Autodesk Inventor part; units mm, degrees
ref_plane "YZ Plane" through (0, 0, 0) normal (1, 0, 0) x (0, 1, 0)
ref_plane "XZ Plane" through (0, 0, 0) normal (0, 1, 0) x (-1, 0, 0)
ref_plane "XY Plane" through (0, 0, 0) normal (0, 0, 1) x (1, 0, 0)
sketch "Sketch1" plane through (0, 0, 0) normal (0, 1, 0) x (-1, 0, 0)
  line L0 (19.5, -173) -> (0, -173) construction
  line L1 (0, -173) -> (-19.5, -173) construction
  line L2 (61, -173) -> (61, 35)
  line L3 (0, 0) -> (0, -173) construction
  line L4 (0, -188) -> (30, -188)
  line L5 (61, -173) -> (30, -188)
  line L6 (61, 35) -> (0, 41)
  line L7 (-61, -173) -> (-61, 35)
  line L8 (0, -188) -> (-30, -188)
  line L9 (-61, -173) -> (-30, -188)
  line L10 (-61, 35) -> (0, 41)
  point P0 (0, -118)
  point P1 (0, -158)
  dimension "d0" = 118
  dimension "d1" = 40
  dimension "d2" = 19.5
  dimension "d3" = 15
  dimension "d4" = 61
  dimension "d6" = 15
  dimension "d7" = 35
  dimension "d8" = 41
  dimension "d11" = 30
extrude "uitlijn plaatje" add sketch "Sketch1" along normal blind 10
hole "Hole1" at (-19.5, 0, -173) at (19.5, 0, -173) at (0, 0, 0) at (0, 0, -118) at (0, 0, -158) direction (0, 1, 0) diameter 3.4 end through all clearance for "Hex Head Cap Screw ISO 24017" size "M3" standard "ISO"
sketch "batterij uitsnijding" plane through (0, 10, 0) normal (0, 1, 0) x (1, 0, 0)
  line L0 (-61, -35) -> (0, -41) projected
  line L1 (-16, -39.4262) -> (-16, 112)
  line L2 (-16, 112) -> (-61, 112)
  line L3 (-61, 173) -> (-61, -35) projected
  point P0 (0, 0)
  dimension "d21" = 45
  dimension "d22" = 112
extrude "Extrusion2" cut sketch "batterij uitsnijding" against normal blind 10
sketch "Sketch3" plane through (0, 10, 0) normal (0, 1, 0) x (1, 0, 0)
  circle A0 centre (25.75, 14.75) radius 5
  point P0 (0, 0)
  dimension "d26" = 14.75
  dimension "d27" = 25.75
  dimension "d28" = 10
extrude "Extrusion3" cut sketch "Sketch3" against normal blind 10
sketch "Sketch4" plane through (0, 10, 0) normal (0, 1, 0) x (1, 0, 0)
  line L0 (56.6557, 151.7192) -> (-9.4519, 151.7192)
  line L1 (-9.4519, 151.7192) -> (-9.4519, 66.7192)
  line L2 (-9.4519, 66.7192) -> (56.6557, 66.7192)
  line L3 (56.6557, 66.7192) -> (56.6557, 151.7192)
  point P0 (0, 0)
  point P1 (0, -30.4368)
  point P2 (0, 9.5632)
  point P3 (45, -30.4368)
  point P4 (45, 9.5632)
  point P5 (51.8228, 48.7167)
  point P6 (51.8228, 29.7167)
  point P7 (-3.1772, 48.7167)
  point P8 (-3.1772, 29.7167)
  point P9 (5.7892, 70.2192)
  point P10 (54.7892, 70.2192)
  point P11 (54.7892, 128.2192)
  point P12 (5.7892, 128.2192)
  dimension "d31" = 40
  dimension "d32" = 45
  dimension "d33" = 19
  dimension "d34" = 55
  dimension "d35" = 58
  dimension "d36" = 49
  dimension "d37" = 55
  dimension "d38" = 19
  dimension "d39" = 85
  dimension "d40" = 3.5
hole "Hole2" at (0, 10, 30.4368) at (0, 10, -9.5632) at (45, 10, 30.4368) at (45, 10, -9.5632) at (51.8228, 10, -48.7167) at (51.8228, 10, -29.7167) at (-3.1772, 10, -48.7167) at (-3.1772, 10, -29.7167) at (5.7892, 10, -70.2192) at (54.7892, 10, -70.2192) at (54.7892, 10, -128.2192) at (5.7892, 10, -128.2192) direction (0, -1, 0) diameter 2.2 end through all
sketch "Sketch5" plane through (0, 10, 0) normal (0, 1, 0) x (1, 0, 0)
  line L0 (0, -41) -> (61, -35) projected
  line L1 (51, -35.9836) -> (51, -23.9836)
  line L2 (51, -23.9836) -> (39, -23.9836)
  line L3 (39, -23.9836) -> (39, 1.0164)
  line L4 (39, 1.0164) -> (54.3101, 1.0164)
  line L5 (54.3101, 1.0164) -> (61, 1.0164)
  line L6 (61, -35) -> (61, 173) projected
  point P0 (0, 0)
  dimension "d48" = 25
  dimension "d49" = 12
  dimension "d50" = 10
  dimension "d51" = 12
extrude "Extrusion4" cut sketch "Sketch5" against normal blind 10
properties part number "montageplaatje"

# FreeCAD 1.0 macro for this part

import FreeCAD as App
import Part
import Sketcher


def add_polygon(sketch, points):
    """Adds a closed chain of lines whose ends are joined by coincident constraints."""
    first, n = sketch.GeometryCount, len(points)
    for a, b in zip(points, points[1:] + points[:1]):
        sketch.addGeometry(Part.LineSegment(App.Vector(*a, 0), App.Vector(*b, 0)), False)
    for i in range(n):
        sketch.addConstraint(Sketcher.Constraint("Coincident", first + i, 2, first + (i + 1) % n, 1))

doc = App.newDocument("Part")
body = doc.addObject("PartDesign::Body", "Body")

# Sketch on XZ plane
sketch1 = doc.addObject("Sketcher::SketchObject", "Sketch")
body.addObject(sketch1)
sketch1.AttachmentSupport = (doc.XZ_Plane, [""])
sketch1.MapMode = "FlatFace"
add_polygon(sketch1, [(-30, -188), (-61, -173), (-61, 35), (0, 41), (61, 35), (61, -173), (30, -188)])  # lines 0-6
sketch1.addConstraint(Sketcher.Constraint("Vertical", 1))
sketch1.addConstraint(Sketcher.Constraint("Vertical", 4))
sketch1.addConstraint(Sketcher.Constraint("Horizontal", 6))
sketch1.addConstraint(Sketcher.Constraint("Symmetric", 1, 2, 3, 2, -2))
sketch1.addConstraint(Sketcher.Constraint("PointOnObject", 2, 2, -2))
sketch1.addConstraint(Sketcher.Constraint("Horizontal", 0, 2, 4, 2))
sketch1.addConstraint(Sketcher.Constraint("Equal", 0, 5))
sketch1.addConstraint(Sketcher.Constraint("DistanceX", 0, 2, -1, 1, 61.0))
sketch1.addConstraint(Sketcher.Constraint("DistanceY", -1, 1, 1, 2, 35.0))
sketch1.addConstraint(Sketcher.Constraint("DistanceY", -1, 1, 2, 2, 41.0))
sketch1.addConstraint(Sketcher.Constraint("DistanceX", -1, 1, 5, 2, 30.0))
sketch1.addConstraint(Sketcher.Constraint("DistanceY", 5, 2, 4, 2, 15.0))
sketch1.addConstraint(Sketcher.Constraint("DistanceY", 1, 1, 1, 2, 208.0))
pad1 = doc.addObject("PartDesign::Pad", "Pad")
body.addObject(pad1)
pad1.Profile = sketch1
pad1.Length = 10
pad1.Reversed = True

# Sketch on XZ plane
sketch2 = doc.addObject("Sketcher::SketchObject", "Sketch001")
body.addObject(sketch2)
sketch2.AttachmentSupport = (doc.XZ_Plane, [""])
sketch2.MapMode = "FlatFace"
sketch2.addGeometry(Part.Circle(App.Vector(-19.5, -173, 0), App.Vector(0, 0, 1), 1.7), False)
sketch2.addGeometry(Part.Circle(App.Vector(19.5, -173, 0), App.Vector(0, 0, 1), 1.7), False)
sketch2.addGeometry(Part.Circle(App.Vector(0, 0, 0), App.Vector(0, 0, 1), 1.7), False)
sketch2.addGeometry(Part.Circle(App.Vector(0, -118, 0), App.Vector(0, 0, 1), 1.7), False)
sketch2.addGeometry(Part.Circle(App.Vector(0, -158, 0), App.Vector(0, 0, 1), 1.7), False)
sketch2.addConstraint(Sketcher.Constraint("Coincident", 2, 3, -1, 1))
sketch2.addConstraint(Sketcher.Constraint("Equal", 0, 1))
sketch2.addConstraint(Sketcher.Constraint("Equal", 1, 2))
sketch2.addConstraint(Sketcher.Constraint("Equal", 2, 3))
sketch2.addConstraint(Sketcher.Constraint("Equal", 3, 4))
sketch2.addConstraint(Sketcher.Constraint("Symmetric", 0, 3, 1, 3, -2))
sketch2.addConstraint(Sketcher.Constraint("PointOnObject", 3, 3, -2))
sketch2.addConstraint(Sketcher.Constraint("PointOnObject", 4, 3, -2))
sketch2.addConstraint(Sketcher.Constraint("Diameter", 0, 3.4))
sketch2.addConstraint(Sketcher.Constraint("DistanceY", 0, 3, -1, 1, 173.0))
sketch2.addConstraint(Sketcher.Constraint("DistanceY", 3, 3, -1, 1, 118.0))
sketch2.addConstraint(Sketcher.Constraint("DistanceY", 4, 3, -1, 1, 158.0))
sketch2.addConstraint(Sketcher.Constraint("DistanceX", 0, 3, 1, 3, 39.0))
doc.recompute()
hole = doc.addObject("PartDesign::Hole", "Hole")
body.addObject(hole)
hole.Profile = sketch2
hole.ThreadType = "None"
hole.Diameter = 3.4
hole.DepthType = "ThroughAll"

# Sketch on XZ plane
sketch3 = doc.addObject("Sketcher::SketchObject", "Sketch002")
body.addObject(sketch3)
sketch3.AttachmentSupport = (doc.XZ_Plane, [""])
sketch3.MapMode = "FlatFace"
sketch3.AttachmentOffset = App.Placement(App.Vector(0, 0, -10), App.Rotation())
add_polygon(sketch3, [(-61, -112), (-61, 35), (-16, 39), (-16, -112)])  # lines 0-3
sketch3.addConstraint(Sketcher.Constraint("Vertical", 0))
sketch3.addConstraint(Sketcher.Constraint("Vertical", 2))
sketch3.addConstraint(Sketcher.Constraint("Horizontal", 3))
sketch3.addConstraint(Sketcher.Constraint("DistanceX", 3, 2, 3, 1, 45.0))
sketch3.addConstraint(Sketcher.Constraint("DistanceY", 2, 2, -1, 1, 112.0))
sketch3.addConstraint(Sketcher.Constraint("DistanceY", 0, 1, 0, 2, 147.0))
sketch3.addConstraint(Sketcher.Constraint("DistanceX", 0, 2, -1, 1, 61.0))
sketch3.addConstraint(Sketcher.Constraint("DistanceY", 2, 2, 2, 1, 151.4262))
pocket1 = doc.addObject("PartDesign::Pocket", "Pocket")
body.addObject(pocket1)
pocket1.Profile = sketch3
pocket1.Length = 10
pocket1.Reversed = True

# Sketch on XZ plane
sketch4 = doc.addObject("Sketcher::SketchObject", "Sketch003")
body.addObject(sketch4)
sketch4.AttachmentSupport = (doc.XZ_Plane, [""])
sketch4.MapMode = "FlatFace"
sketch4.AttachmentOffset = App.Placement(App.Vector(0, 0, -10), App.Rotation())
sketch4.addGeometry(Part.Circle(App.Vector(26, -15, 0), App.Vector(0, 0, 1), 5), False)
sketch4.addConstraint(Sketcher.Constraint("Diameter", 0, 10.0))
sketch4.addConstraint(Sketcher.Constraint("DistanceX", -1, 1, 0, 3, 25.75))
sketch4.addConstraint(Sketcher.Constraint("DistanceY", 0, 3, -1, 1, 14.75))
pocket2 = doc.addObject("PartDesign::Pocket", "Pocket001")
body.addObject(pocket2)
pocket2.Profile = sketch4
pocket2.Length = 10
pocket2.Reversed = True

# Sketch on XZ plane
sketch5 = doc.addObject("Sketcher::SketchObject", "Sketch004")
body.addObject(sketch5)
sketch5.AttachmentSupport = (doc.XZ_Plane, [""])
sketch5.MapMode = "FlatFace"
sketch5.AttachmentOffset = App.Placement(App.Vector(0, 0, -10), App.Rotation())
sketch5.addGeometry(Part.Circle(App.Vector(0, 30.4, 0), App.Vector(0, 0, 1), 1.1), False)
sketch5.addGeometry(Part.Circle(App.Vector(0, -9.6, 0), App.Vector(0, 0, 1), 1.1), False)
sketch5.addGeometry(Part.Circle(App.Vector(45, 30.4, 0), App.Vector(0, 0, 1), 1.1), False)
sketch5.addGeometry(Part.Circle(App.Vector(45, -9.6, 0), App.Vector(0, 0, 1), 1.1), False)
sketch5.addGeometry(Part.Circle(App.Vector(51.8, -48.7, 0), App.Vector(0, 0, 1), 1.1), False)
sketch5.addGeometry(Part.Circle(App.Vector(51.8, -29.7, 0), App.Vector(0, 0, 1), 1.1), False)
sketch5.addGeometry(Part.Circle(App.Vector(-3.2, -48.7, 0), App.Vector(0, 0, 1), 1.1), False)
sketch5.addGeometry(Part.Circle(App.Vector(-3.2, -29.7, 0), App.Vector(0, 0, 1), 1.1), False)
sketch5.addGeometry(Part.Circle(App.Vector(5.8, -70.2, 0), App.Vector(0, 0, 1), 1.1), False)
sketch5.addGeometry(Part.Circle(App.Vector(54.8, -70.2, 0), App.Vector(0, 0, 1), 1.1), False)
sketch5.addGeometry(Part.Circle(App.Vector(54.8, -128.2, 0), App.Vector(0, 0, 1), 1.1), False)
sketch5.addGeometry(Part.Circle(App.Vector(5.8, -128.2, 0), App.Vector(0, 0, 1), 1.1), False)
sketch5.addConstraint(Sketcher.Constraint("Equal", 0, 1))
sketch5.addConstraint(Sketcher.Constraint("Equal", 1, 2))
sketch5.addConstraint(Sketcher.Constraint("Equal", 2, 3))
sketch5.addConstraint(Sketcher.Constraint("Equal", 3, 4))
sketch5.addConstraint(Sketcher.Constraint("Equal", 4, 5))
sketch5.addConstraint(Sketcher.Constraint("Equal", 5, 6))
sketch5.addConstraint(Sketcher.Constraint("Equal", 6, 7))
sketch5.addConstraint(Sketcher.Constraint("Equal", 7, 8))
sketch5.addConstraint(Sketcher.Constraint("Equal", 8, 9))
sketch5.addConstraint(Sketcher.Constraint("Equal", 9, 10))
sketch5.addConstraint(Sketcher.Constraint("Equal", 10, 11))
sketch5.addConstraint(Sketcher.Constraint("PointOnObject", 0, 3, -2))
sketch5.addConstraint(Sketcher.Constraint("PointOnObject", 1, 3, -2))
sketch5.addConstraint(Sketcher.Constraint("Horizontal", 0, 3, 2, 3))
sketch5.addConstraint(Sketcher.Constraint("Horizontal", 1, 3, 3, 3))
sketch5.addConstraint(Sketcher.Constraint("Horizontal", 4, 3, 6, 3))
sketch5.addConstraint(Sketcher.Constraint("Horizontal", 5, 3, 7, 3))
sketch5.addConstraint(Sketcher.Constraint("Horizontal", 8, 3, 9, 3))
sketch5.addConstraint(Sketcher.Constraint("Horizontal", 10, 3, 11, 3))
sketch5.addConstraint(Sketcher.Constraint("Vertical", 2, 3, 3, 3))
sketch5.addConstraint(Sketcher.Constraint("Vertical", 4, 3, 5, 3))
sketch5.addConstraint(Sketcher.Constraint("Vertical", 6, 3, 7, 3))
sketch5.addConstraint(Sketcher.Constraint("Vertical", 9, 3, 10, 3))
sketch5.addConstraint(Sketcher.Constraint("Vertical", 8, 3, 11, 3))
sketch5.addConstraint(Sketcher.Constraint("Diameter", 0, 2.2))
sketch5.addConstraint(Sketcher.Constraint("DistanceX", -1, 1, 2, 3, 45.0))
sketch5.addConstraint(Sketcher.Constraint("DistanceY", 1, 3, 0, 3, 40.0))
sketch5.addConstraint(Sketcher.Constraint("DistanceY", 4, 3, 5, 3, 19.0))
sketch5.addConstraint(Sketcher.Constraint("DistanceX", 6, 3, 4, 3, 55.0))
sketch5.addConstraint(Sketcher.Constraint("DistanceX", 8, 3, 9, 3, 49.0))
sketch5.addConstraint(Sketcher.Constraint("DistanceY", 10, 3, 9, 3, 58.0))
sketch5.addConstraint(Sketcher.Constraint("DistanceY", 8, 3, 1, 3, 60.656))
sketch5.addConstraint(Sketcher.Constraint("DistanceY", -1, 1, 0, 3, 30.4368))
sketch5.addConstraint(Sketcher.Constraint("DistanceX", -1, 1, 4, 3, 51.8228))
sketch5.addConstraint(Sketcher.Constraint("DistanceY", 4, 3, -1, 1, 48.7167))
sketch5.addConstraint(Sketcher.Constraint("DistanceX", -1, 1, 8, 3, 5.7892))
doc.recompute()
hole2 = doc.addObject("PartDesign::Hole", "Hole001")
body.addObject(hole2)
hole2.Profile = sketch5
hole2.ThreadType = "None"
hole2.Diameter = 2.2
hole2.DepthType = "ThroughAll"
hole2.Reversed = True

# Sketch on XZ plane
sketch6 = doc.addObject("Sketcher::SketchObject", "Sketch005")
body.addObject(sketch6)
sketch6.AttachmentSupport = (doc.XZ_Plane, [""])
sketch6.MapMode = "FlatFace"
sketch6.AttachmentOffset = App.Placement(App.Vector(0, 0, -10), App.Rotation())
add_polygon(sketch6, [(51, 24), (51, 36), (61, 35), (61, -1), (39, -1), (39, 24)])  # lines 0-5
sketch6.addConstraint(Sketcher.Constraint("Vertical", 0))
sketch6.addConstraint(Sketcher.Constraint("Vertical", 2))
sketch6.addConstraint(Sketcher.Constraint("Horizontal", 3))
sketch6.addConstraint(Sketcher.Constraint("Vertical", 4))
sketch6.addConstraint(Sketcher.Constraint("Horizontal", 5))
sketch6.addConstraint(Sketcher.Constraint("Equal", 5, 0))
sketch6.addConstraint(Sketcher.Constraint("DistanceX", 5, 1, 5, 2, 12.0))
sketch6.addConstraint(Sketcher.Constraint("DistanceY", 4, 1, 4, 2, 25.0))
sketch6.addConstraint(Sketcher.Constraint("DistanceX", 0, 2, 1, 2, 10.0))
sketch6.addConstraint(Sketcher.Constraint("DistanceX", -1, 1, 0, 2, 51.0))
sketch6.addConstraint(Sketcher.Constraint("DistanceY", -1, 1, 1, 2, 35.0))
sketch6.addConstraint(Sketcher.Constraint("DistanceY", 2, 2, 2, 1, 36.0164))
pocket3 = doc.addObject("PartDesign::Pocket", "Pocket002")
body.addObject(pocket3)
pocket3.Profile = sketch6
pocket3.Length = 10
pocket3.Reversed = True

doc.recompute()
